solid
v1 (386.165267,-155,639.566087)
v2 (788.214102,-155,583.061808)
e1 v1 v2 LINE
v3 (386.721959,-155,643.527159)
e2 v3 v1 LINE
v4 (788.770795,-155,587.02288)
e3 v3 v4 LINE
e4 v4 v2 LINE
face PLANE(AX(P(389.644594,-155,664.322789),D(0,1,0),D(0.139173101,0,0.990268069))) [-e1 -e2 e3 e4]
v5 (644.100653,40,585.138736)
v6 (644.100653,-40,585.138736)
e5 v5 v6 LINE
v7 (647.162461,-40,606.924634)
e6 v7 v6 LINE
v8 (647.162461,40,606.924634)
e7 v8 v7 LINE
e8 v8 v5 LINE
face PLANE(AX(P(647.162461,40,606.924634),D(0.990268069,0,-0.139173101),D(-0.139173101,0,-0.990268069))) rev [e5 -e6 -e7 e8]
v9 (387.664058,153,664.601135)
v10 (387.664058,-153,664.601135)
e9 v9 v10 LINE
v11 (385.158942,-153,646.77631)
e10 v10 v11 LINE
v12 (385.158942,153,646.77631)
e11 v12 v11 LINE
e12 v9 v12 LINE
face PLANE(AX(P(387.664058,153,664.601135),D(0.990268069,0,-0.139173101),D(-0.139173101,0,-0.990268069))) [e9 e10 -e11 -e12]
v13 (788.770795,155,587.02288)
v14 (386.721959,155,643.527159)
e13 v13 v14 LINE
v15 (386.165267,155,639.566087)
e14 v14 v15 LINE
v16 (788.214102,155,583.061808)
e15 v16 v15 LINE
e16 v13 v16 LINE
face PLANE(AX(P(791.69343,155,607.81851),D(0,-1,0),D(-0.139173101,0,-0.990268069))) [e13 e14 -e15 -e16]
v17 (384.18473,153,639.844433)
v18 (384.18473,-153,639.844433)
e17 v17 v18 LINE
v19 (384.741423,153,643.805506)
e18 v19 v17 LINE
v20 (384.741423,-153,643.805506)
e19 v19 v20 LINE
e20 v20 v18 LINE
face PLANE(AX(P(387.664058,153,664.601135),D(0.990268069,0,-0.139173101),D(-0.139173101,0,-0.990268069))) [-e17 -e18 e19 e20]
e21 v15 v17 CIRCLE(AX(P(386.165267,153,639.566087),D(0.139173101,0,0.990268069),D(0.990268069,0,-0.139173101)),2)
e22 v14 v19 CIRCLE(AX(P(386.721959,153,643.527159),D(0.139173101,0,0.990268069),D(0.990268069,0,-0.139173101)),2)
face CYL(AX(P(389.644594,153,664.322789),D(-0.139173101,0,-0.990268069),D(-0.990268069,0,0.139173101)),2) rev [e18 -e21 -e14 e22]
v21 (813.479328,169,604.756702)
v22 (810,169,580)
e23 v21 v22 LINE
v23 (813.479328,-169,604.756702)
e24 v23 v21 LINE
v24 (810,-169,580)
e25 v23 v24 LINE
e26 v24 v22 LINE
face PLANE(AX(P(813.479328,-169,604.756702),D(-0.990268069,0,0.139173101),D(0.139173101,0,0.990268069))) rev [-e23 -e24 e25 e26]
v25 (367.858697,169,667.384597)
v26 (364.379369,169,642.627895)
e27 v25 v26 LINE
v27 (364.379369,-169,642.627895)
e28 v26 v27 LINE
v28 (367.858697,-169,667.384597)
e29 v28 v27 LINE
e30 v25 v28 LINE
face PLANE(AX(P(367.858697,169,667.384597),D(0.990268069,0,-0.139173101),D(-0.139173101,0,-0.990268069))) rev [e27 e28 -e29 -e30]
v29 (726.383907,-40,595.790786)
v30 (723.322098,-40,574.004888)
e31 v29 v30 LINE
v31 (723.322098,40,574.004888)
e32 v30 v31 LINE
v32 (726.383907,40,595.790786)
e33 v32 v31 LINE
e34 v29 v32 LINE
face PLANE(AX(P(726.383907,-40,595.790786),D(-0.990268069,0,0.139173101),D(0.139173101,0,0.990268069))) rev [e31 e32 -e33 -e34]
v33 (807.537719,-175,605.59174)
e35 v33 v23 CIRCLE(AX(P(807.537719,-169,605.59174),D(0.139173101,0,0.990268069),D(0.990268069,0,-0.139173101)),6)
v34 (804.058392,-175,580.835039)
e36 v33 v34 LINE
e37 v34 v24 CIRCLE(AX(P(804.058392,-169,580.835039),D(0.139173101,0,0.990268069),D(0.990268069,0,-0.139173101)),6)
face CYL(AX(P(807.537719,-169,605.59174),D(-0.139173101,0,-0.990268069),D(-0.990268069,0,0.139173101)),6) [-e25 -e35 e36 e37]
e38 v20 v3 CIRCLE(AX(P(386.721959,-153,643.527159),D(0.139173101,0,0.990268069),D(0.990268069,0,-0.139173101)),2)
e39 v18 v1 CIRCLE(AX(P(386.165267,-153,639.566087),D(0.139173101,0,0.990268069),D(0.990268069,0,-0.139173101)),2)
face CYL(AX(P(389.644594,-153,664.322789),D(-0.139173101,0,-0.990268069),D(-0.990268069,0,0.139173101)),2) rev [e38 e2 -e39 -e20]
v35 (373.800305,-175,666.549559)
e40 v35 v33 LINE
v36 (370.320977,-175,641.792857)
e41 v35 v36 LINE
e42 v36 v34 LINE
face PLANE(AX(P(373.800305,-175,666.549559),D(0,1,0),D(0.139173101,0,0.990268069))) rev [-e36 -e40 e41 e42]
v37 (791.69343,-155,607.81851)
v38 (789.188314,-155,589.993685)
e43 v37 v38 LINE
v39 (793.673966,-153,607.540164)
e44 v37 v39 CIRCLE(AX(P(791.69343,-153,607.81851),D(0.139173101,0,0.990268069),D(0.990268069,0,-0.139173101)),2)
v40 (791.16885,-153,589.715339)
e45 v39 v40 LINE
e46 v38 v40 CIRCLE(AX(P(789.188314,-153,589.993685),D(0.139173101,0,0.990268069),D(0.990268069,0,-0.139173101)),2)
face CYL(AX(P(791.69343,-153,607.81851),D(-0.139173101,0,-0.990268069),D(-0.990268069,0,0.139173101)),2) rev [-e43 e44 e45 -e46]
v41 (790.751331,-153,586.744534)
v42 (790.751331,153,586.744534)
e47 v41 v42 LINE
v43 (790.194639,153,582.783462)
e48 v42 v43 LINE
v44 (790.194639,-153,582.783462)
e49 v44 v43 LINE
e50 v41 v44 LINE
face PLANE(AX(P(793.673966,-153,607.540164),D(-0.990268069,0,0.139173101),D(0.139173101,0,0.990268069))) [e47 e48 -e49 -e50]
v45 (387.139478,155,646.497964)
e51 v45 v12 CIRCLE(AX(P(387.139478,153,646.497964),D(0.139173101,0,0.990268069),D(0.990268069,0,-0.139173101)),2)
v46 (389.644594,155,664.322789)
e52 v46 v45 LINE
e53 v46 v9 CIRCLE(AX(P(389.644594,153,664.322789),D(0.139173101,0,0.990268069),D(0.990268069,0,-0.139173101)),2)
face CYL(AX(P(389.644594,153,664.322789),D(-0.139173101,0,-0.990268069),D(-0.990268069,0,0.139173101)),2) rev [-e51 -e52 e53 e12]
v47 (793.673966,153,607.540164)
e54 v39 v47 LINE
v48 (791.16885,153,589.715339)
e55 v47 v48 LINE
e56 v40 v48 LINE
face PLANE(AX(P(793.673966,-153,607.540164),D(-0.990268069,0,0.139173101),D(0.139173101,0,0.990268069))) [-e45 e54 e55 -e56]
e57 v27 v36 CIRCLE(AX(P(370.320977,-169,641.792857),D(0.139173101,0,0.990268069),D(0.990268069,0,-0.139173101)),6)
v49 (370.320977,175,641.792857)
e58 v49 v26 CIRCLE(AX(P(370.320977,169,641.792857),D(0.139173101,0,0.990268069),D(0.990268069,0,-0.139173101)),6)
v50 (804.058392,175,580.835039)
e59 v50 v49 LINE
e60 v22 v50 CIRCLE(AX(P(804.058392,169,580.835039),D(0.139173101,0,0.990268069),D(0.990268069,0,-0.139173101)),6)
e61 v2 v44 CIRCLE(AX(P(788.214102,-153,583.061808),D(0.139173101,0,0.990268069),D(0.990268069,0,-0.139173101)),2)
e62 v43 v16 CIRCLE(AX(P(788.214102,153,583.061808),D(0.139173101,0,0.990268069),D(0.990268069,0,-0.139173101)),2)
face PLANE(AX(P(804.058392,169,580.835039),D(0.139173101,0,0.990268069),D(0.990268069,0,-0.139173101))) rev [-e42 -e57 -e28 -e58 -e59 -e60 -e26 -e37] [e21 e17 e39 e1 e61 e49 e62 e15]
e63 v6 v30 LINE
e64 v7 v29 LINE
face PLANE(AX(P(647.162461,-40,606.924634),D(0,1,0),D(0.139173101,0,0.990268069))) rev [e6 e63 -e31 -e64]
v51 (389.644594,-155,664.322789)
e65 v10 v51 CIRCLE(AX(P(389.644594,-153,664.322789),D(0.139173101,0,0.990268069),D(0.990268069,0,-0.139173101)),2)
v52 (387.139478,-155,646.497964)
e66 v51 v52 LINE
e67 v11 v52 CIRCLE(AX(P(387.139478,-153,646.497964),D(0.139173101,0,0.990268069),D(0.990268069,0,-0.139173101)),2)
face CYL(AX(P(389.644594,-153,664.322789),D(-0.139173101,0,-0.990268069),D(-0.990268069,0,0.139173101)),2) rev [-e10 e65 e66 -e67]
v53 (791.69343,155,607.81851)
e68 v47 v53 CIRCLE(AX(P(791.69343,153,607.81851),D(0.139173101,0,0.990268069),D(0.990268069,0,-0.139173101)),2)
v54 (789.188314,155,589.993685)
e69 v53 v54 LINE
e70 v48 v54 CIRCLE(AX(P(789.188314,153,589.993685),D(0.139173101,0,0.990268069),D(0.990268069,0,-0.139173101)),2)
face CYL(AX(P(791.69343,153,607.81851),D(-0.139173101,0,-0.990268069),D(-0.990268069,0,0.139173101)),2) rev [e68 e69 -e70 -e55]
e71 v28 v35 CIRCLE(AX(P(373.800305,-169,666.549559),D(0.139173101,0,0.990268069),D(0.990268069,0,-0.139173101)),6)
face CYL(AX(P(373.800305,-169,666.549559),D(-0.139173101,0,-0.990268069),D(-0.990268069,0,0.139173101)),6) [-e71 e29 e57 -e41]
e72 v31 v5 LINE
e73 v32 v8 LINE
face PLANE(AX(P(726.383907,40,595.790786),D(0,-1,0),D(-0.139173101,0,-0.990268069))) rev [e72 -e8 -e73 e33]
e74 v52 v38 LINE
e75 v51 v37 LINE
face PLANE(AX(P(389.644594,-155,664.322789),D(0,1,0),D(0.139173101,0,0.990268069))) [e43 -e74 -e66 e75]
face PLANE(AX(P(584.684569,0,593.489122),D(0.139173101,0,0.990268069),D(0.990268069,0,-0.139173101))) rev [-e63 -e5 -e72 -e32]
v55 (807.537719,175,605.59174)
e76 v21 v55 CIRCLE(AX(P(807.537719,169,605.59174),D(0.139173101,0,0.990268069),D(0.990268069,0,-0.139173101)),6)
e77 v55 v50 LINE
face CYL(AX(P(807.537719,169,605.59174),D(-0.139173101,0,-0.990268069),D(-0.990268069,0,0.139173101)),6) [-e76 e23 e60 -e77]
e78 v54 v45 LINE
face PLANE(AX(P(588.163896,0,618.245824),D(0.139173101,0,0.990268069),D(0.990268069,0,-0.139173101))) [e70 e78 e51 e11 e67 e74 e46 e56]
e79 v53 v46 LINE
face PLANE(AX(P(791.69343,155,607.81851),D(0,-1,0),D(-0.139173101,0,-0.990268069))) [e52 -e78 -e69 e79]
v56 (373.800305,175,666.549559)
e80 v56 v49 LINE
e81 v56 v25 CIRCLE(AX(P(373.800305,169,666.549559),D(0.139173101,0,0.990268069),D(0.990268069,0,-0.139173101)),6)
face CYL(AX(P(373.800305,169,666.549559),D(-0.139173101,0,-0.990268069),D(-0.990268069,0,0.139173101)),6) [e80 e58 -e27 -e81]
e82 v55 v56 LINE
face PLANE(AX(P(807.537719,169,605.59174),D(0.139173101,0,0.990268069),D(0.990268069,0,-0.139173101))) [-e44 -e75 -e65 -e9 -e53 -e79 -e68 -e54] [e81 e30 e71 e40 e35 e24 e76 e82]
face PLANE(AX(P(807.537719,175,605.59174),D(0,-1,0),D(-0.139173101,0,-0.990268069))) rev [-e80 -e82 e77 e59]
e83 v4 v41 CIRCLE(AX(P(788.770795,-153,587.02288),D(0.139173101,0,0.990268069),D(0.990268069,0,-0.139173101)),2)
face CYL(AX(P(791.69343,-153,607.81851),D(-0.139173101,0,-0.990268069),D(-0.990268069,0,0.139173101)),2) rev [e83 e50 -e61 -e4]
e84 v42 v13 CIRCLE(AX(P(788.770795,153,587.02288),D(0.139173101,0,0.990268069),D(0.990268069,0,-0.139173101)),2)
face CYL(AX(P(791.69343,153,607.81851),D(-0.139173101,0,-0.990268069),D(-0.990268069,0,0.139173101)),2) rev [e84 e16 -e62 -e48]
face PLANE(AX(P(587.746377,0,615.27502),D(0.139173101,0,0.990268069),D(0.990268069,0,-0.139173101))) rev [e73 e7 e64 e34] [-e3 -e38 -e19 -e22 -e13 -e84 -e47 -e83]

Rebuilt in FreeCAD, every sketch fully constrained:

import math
import FreeCAD as App
import Part
import Sketcher

V = App.Vector
Q = App.Units.Quantity


def add_polygon(sketch, points):
    """Adds a closed chain of lines whose ends are joined by coincident constraints."""
    first, n = sketch.GeometryCount, len(points)
    for a, b in zip(points, points[1:] + points[:1]):
        sketch.addGeometry(Part.LineSegment(App.Vector(*a, 0), App.Vector(*b, 0)), False)
    for i in range(n):
        sketch.addConstraint(Sketcher.Constraint("Coincident", first + i, 2, first + (i + 1) % n, 1))

doc = App.newDocument("Part")
body = doc.addObject("PartDesign::Body", "Body")

# Sketch on XY plane
sketch1 = body.newObject("Sketcher::SketchObject", "Sketch")
sketch1.AttachmentSupport = (doc.getObject("XY_Plane"), [""])
sketch1.MapMode = "FlatFace"
sketch1.AttachmentOffset = App.Placement(V(0, 0, -12.5), App.Rotation())
sketch1.addGeometry(Part.LineSegment(V(219, 175, 0), V(-219, 175, 0)), False)
sketch1.addGeometry(Part.ArcOfCircle(Part.Circle(V(-219, 169, 0), V(0, 0, 1), 6), math.radians(90), math.radians(180)), False)
sketch1.addGeometry(Part.LineSegment(V(-225, 169, 0), V(-225, -169, 0)), False)
sketch1.addGeometry(Part.ArcOfCircle(Part.Circle(V(-219, -169, 0), V(0, 0, 1), 6), math.radians(180), math.radians(270)), False)
sketch1.addGeometry(Part.LineSegment(V(-219, -175, 0), V(219, -175, 0)), False)
sketch1.addGeometry(Part.ArcOfCircle(Part.Circle(V(219, -169, 0), V(0, 0, 1), 6), math.radians(-90), math.radians(0)), False)
sketch1.addGeometry(Part.LineSegment(V(225, -169, 0), V(225, 169, 0)), False)
sketch1.addGeometry(Part.ArcOfCircle(Part.Circle(V(219, 169, 0), V(0, 0, 1), 6), math.radians(0), math.radians(90)), False)
sketch1.addGeometry(Part.LineSegment(V(-203, 155, 0), V(203, 155, 0)), False)
sketch1.addGeometry(Part.ArcOfCircle(Part.Circle(V(203, 153, 0), V(0, 0, 1), 2), math.radians(0), math.radians(90)), False)
sketch1.addGeometry(Part.LineSegment(V(205, 153, 0), V(205, -153, 0)), False)
sketch1.addGeometry(Part.ArcOfCircle(Part.Circle(V(203, -153, 0), V(0, 0, 1), 2), math.radians(-90), math.radians(0)), False)
sketch1.addGeometry(Part.LineSegment(V(203, -155, 0), V(-203, -155, 0)), False)
sketch1.addGeometry(Part.ArcOfCircle(Part.Circle(V(-203, -153, 0), V(0, 0, 1), 2), math.radians(-180), math.radians(-90)), False)
sketch1.addGeometry(Part.LineSegment(V(-205, -153, 0), V(-205, 153, 0)), False)
sketch1.addGeometry(Part.ArcOfCircle(Part.Circle(V(-203, 153, 0), V(0, 0, 1), 2), math.radians(90), math.radians(180)), False)
sketch1.addConstraint(Sketcher.Constraint("Tangent", 0, 2, 1, 1))
sketch1.addConstraint(Sketcher.Constraint("Tangent", 1, 2, 2, 1))
sketch1.addConstraint(Sketcher.Constraint("Tangent", 2, 2, 3, 1))
sketch1.addConstraint(Sketcher.Constraint("Tangent", 3, 2, 4, 1))
sketch1.addConstraint(Sketcher.Constraint("Tangent", 4, 2, 5, 1))
sketch1.addConstraint(Sketcher.Constraint("Tangent", 5, 2, 6, 1))
sketch1.addConstraint(Sketcher.Constraint("Tangent", 6, 2, 7, 1))
sketch1.addConstraint(Sketcher.Constraint("Tangent", 7, 2, 0, 1))
sketch1.addConstraint(Sketcher.Constraint("Tangent", 8, 2, 9, 2))
sketch1.addConstraint(Sketcher.Constraint("Tangent", 9, 1, 10, 1))
sketch1.addConstraint(Sketcher.Constraint("Tangent", 10, 2, 11, 2))
sketch1.addConstraint(Sketcher.Constraint("Tangent", 11, 1, 12, 1))
sketch1.addConstraint(Sketcher.Constraint("Tangent", 12, 2, 13, 2))
sketch1.addConstraint(Sketcher.Constraint("Tangent", 13, 1, 14, 1))
sketch1.addConstraint(Sketcher.Constraint("Tangent", 14, 2, 15, 2))
sketch1.addConstraint(Sketcher.Constraint("Tangent", 15, 1, 8, 1))
sketch1.addConstraint(Sketcher.Constraint("Horizontal", 0))
sketch1.addConstraint(Sketcher.Constraint("Vertical", 2))
sketch1.addConstraint(Sketcher.Constraint("Horizontal", 4))
sketch1.addConstraint(Sketcher.Constraint("Vertical", 6))
sketch1.addConstraint(Sketcher.Constraint("Horizontal", 8))
sketch1.addConstraint(Sketcher.Constraint("Vertical", 10))
sketch1.addConstraint(Sketcher.Constraint("Horizontal", 12))
sketch1.addConstraint(Sketcher.Constraint("Vertical", 14))
sketch1.addConstraint(Sketcher.Constraint("Equal", 1, 3))
sketch1.addConstraint(Sketcher.Constraint("Equal", 3, 5))
sketch1.addConstraint(Sketcher.Constraint("Equal", 5, 7))
sketch1.addConstraint(Sketcher.Constraint("Equal", 9, 11))
sketch1.addConstraint(Sketcher.Constraint("Equal", 11, 13))
sketch1.addConstraint(Sketcher.Constraint("Equal", 13, 15))
sketch1.addConstraint(Sketcher.Constraint("Symmetric", 1, 3, 5, 3, -1, 1))
sketch1.addConstraint(Sketcher.Constraint("Symmetric", 9, 3, 13, 3, -1, 1))
sketch1.addConstraint(Sketcher.Constraint("Radius", 1, Q("6 mm")))
sketch1.addConstraint(Sketcher.Constraint("Radius", 9, Q("2 mm")))
sketch1.addConstraint(Sketcher.Constraint("DistanceX", 0, 2, 0, 1, Q("438 mm")))
sketch1.addConstraint(Sketcher.Constraint("DistanceX", 8, 1, 8, 2, Q("406 mm")))
sketch1.addConstraint(Sketcher.Constraint("DistanceY", 2, 2, 2, 1, Q("338 mm")))
sketch1.addConstraint(Sketcher.Constraint("DistanceY", 10, 2, 10, 1, Q("306 mm")))
pad1 = body.newObject("PartDesign::Pad", "Pad")
pad1.Profile = sketch1
pad1.Length = 25
body2 = doc.addObject("PartDesign::Body", "Body001")
doc.recompute()

body.Placement = App.Placement(V(0, 0, 0), App.Rotation(V(0, 1, 0), 8))
boolean = body2.newObject("PartDesign::Boolean", "Boolean")
boolean.Type = "Fuse"
boolean.addObjects([body])
body3 = doc.addObject("PartDesign::Body", "Body002")
doc.recompute()

body2.Placement = App.Placement(V(588.929348, 0, 623.692299), App.Rotation(V(0, 0, 1), 0))
boolean2 = body3.newObject("PartDesign::Boolean", "Boolean001")
boolean2.Type = "Fuse"
boolean2.addObjects([body2])
body4 = doc.addObject("PartDesign::Body", "Body003")

# Sketch on XY plane
sketch2 = body4.newObject("Sketcher::SketchObject", "Sketch001")
sketch2.AttachmentSupport = (doc.getObject("XY_Plane003"), [""])
sketch2.MapMode = "FlatFace"
sketch2.AttachmentOffset = App.Placement(V(0, 0, -8.5), App.Rotation())
add_polygon(sketch2, [(-205, 155), (-205, -155), (205, -155), (205, 155)])  # lines 0-3
sketch2.addConstraint(Sketcher.Constraint("Vertical", 0))
sketch2.addConstraint(Sketcher.Constraint("Horizontal", 1))
sketch2.addConstraint(Sketcher.Constraint("Vertical", 2))
sketch2.addConstraint(Sketcher.Constraint("Horizontal", 3))
sketch2.addConstraint(Sketcher.Constraint("Symmetric", 0, 2, 2, 2, -1, 1))
sketch2.addConstraint(Sketcher.Constraint("DistanceX", 1, 1, 1, 2, Q("410 mm")))
sketch2.addConstraint(Sketcher.Constraint("DistanceY", 0, 2, 0, 1, Q("310 mm")))
pad2 = body4.newObject("PartDesign::Pad", "Pad001")
pad2.Profile = sketch2
pad2.Length = 3
body5 = doc.addObject("PartDesign::Body", "Body004")
doc.recompute()

body4.Placement = App.Placement(V(0, 0, 0), App.Rotation(V(0, 1, 0), 8))
boolean3 = body5.newObject("PartDesign::Boolean", "Boolean002")
boolean3.Type = "Fuse"
boolean3.addObjects([body4])
body6 = doc.addObject("PartDesign::Body", "Body005")
doc.recompute()

body5.Placement = App.Placement(V(588.929348, 0, 623.692299), App.Rotation(V(0, 0, 1), 0))
boolean4 = body6.newObject("PartDesign::Boolean", "Boolean003")
boolean4.Type = "Fuse"
boolean4.addObjects([body5])
body7 = doc.addObject("PartDesign::Body", "Body006")

# Sketch on XY plane
sketch3 = body7.newObject("Sketcher::SketchObject", "Sketch002")
sketch3.AttachmentSupport = (doc.getObject("XY_Plane006"), [""])
sketch3.MapMode = "FlatFace"
sketch3.AttachmentOffset = App.Placement(V(0, 0, -30.5), App.Rotation())
add_polygon(sketch3, [(60, 40), (60, -40), (140, -40), (140, 40)])  # lines 0-3
sketch3.addConstraint(Sketcher.Constraint("Vertical", 0))
sketch3.addConstraint(Sketcher.Constraint("Horizontal", 1))
sketch3.addConstraint(Sketcher.Constraint("Vertical", 2))
sketch3.addConstraint(Sketcher.Constraint("Horizontal", 3))
sketch3.addConstraint(Sketcher.Constraint("Equal", 3, 0))
sketch3.addConstraint(Sketcher.Constraint("DistanceX", 1, 1, 1, 2, Q("80 mm")))
sketch3.addConstraint(Sketcher.Constraint("DistanceX", -1, 1, 0, 2, Q("60 mm")))
sketch3.addConstraint(Sketcher.Constraint("DistanceY", 0, 2, -1, 1, Q("40 mm")))
pad3 = body7.newObject("PartDesign::Pad", "Pad002")
pad3.Profile = sketch3
pad3.Length = 22
body8 = doc.addObject("PartDesign::Body", "Body007")
doc.recompute()

body7.Placement = App.Placement(V(0, 0, 0), App.Rotation(V(0, 1, 0), 8))
boolean5 = body8.newObject("PartDesign::Boolean", "Boolean004")
boolean5.Type = "Fuse"
boolean5.addObjects([body7])
body9 = doc.addObject("PartDesign::Body", "Body008")
doc.recompute()

body8.Placement = App.Placement(V(588.929348, 0, 623.692299), App.Rotation(V(0, 0, 1), 0))
boolean6 = body9.newObject("PartDesign::Boolean", "Boolean005")
boolean6.Type = "Fuse"
boolean6.addObjects([body8])
body3.AllowCompound = True
doc.recompute()

boolean7 = body3.newObject("PartDesign::Boolean", "Boolean006")
boolean7.Type = "Fuse"
boolean7.addObjects([body9])
doc.recompute()

boolean8 = body3.newObject("PartDesign::Boolean", "Boolean007")
boolean8.Type = "Fuse"
boolean8.addObjects([body6])

doc.recompute()
